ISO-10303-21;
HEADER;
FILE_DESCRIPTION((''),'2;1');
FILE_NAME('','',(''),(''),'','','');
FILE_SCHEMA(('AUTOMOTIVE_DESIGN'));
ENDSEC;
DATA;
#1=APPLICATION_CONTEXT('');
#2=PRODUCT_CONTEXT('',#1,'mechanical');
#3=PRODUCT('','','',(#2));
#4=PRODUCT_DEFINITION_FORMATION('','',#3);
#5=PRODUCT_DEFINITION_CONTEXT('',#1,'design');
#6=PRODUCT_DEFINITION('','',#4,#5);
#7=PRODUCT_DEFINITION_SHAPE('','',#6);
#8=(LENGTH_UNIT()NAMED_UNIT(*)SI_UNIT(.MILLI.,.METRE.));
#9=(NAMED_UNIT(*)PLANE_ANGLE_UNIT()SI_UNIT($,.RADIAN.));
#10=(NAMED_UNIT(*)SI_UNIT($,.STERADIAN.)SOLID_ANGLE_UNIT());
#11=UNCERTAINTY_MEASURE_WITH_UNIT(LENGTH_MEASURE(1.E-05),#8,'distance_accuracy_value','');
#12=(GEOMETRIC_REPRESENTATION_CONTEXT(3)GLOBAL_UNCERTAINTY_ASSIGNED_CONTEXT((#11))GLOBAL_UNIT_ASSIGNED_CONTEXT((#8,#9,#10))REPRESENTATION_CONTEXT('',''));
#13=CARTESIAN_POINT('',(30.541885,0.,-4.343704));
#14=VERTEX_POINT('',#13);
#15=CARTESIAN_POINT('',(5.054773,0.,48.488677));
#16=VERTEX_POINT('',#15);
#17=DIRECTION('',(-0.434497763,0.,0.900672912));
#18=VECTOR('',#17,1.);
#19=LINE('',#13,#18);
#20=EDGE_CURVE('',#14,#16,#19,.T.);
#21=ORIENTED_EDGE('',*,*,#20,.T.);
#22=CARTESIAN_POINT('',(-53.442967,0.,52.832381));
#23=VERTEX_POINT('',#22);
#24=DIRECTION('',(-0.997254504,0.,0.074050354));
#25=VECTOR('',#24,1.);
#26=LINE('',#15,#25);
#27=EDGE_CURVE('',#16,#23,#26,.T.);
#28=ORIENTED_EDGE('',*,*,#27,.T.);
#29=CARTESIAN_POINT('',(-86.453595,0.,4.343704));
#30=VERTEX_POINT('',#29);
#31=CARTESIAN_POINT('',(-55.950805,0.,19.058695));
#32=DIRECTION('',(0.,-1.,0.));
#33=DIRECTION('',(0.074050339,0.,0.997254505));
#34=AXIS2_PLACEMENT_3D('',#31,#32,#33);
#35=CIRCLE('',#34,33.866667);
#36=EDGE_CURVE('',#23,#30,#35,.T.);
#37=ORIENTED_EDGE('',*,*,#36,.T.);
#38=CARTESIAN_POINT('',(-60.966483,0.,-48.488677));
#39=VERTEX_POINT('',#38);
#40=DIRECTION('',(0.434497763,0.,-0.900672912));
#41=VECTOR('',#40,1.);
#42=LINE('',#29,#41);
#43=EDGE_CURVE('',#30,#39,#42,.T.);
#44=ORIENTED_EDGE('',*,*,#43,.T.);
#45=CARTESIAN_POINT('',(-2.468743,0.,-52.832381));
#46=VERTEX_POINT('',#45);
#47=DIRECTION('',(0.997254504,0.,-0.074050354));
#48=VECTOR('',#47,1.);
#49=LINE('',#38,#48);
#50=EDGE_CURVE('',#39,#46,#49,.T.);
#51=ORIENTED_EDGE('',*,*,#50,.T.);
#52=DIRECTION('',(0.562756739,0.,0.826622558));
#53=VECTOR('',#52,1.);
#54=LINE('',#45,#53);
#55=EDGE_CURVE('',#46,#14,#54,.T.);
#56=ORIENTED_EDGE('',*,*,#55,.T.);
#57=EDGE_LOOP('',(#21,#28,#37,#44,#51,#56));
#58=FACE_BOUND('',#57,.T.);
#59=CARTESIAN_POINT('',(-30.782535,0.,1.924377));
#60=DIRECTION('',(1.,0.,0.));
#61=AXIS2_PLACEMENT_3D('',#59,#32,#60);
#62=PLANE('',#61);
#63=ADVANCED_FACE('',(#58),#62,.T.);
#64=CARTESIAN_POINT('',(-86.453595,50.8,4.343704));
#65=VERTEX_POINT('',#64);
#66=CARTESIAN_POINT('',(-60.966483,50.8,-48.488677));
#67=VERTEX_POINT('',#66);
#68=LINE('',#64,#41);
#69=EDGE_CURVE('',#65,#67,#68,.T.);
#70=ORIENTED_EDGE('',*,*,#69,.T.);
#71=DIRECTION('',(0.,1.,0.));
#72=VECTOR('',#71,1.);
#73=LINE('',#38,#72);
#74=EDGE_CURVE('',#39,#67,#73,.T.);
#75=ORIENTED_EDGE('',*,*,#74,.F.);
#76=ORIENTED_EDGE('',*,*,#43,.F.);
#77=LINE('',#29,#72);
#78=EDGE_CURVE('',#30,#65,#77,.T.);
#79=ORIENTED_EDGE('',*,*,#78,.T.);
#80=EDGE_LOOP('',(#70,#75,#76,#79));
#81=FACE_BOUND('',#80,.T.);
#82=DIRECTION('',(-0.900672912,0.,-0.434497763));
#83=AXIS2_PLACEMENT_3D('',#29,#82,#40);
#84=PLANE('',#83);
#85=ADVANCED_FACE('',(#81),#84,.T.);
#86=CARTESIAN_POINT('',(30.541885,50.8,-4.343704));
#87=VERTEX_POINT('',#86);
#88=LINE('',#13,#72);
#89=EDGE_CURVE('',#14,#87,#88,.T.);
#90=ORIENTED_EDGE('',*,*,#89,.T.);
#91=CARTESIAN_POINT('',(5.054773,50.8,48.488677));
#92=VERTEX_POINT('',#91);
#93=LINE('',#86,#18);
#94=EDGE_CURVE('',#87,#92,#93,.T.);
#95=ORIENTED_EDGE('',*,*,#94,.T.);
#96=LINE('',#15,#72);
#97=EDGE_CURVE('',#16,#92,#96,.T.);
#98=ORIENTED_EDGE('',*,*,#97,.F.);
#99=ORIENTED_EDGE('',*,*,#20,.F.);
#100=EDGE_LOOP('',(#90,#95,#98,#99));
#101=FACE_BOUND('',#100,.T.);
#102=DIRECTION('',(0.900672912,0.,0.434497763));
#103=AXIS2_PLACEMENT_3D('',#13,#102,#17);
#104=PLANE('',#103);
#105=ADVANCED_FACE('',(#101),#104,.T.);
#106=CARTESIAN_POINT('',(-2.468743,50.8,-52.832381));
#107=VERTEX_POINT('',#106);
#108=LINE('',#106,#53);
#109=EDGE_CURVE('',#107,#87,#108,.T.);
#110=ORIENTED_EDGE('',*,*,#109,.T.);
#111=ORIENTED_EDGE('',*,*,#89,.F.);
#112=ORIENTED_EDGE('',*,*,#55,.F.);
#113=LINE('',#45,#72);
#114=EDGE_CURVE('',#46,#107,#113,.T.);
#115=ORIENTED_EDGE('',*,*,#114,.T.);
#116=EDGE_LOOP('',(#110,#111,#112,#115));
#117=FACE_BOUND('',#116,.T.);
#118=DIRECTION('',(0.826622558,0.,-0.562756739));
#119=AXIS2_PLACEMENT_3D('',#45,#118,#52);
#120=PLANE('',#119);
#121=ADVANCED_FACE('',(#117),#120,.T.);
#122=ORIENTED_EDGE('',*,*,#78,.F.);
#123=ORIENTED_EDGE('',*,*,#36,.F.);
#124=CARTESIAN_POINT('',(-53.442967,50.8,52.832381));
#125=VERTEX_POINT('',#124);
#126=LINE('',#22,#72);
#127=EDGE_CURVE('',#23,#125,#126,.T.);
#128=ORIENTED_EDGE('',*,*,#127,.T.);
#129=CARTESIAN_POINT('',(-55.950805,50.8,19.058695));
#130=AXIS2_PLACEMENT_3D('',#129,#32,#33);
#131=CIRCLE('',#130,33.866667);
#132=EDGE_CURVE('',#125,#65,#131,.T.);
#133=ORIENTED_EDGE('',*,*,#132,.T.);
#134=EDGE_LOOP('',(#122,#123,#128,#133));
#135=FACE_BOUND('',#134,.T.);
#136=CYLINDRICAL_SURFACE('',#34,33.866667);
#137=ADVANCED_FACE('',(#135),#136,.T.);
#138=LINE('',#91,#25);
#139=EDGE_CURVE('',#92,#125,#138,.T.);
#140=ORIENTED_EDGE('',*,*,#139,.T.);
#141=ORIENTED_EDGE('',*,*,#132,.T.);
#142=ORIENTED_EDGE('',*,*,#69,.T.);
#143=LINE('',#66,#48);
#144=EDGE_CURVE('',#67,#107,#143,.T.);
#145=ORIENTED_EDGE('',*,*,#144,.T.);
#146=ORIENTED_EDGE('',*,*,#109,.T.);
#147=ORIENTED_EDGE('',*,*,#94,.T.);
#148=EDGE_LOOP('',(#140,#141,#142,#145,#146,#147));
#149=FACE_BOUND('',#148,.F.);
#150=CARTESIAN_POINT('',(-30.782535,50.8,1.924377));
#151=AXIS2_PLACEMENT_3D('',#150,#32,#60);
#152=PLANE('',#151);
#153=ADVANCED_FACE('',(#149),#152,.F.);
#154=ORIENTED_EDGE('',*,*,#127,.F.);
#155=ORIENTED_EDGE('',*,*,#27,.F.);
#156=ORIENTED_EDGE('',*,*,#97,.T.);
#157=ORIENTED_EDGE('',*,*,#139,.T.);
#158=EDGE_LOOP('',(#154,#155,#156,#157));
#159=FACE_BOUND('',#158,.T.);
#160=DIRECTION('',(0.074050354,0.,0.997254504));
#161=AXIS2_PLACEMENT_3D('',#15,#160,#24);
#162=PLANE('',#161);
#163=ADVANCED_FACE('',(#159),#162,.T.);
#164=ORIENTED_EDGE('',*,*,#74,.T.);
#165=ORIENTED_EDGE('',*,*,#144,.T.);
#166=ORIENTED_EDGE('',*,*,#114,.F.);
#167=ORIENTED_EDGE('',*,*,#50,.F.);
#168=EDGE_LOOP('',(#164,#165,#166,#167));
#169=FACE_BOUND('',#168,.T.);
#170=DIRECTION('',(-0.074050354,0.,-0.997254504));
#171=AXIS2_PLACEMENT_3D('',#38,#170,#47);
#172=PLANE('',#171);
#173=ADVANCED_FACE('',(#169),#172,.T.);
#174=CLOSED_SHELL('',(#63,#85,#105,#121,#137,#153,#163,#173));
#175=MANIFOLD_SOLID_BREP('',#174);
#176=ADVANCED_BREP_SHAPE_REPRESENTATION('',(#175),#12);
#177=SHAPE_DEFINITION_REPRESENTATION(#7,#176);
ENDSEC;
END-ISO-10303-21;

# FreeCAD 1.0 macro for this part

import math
import FreeCAD as App
import Part
import Sketcher
Q = App.Units.Quantity

doc = App.newDocument("Part")
params = doc.addObject("Spreadsheet::Sheet", "Params")
for row, (alias, value) in enumerate([
    ("pad1_length", "2 in"),
], start=1):
    params.set(f"A{row}", alias)
    params.set(f"B{row}", "=" + value)
    params.setAlias(f"B{row}", alias)

body = doc.addObject("PartDesign::Body", "Body")

sketch1 = doc.addObject("Sketcher::SketchObject", "Sketch")
body.addObject(sketch1)
sketch1.AttachmentSupport = (doc.XZ_Plane, [""])
sketch1.MapMode = "FlatFace"
sketch1.addGeometry([
    Part.LineSegment(App.Vector(-86, 4, 0), App.Vector(-61, -48, 0)),
    Part.LineSegment(App.Vector(-61, -48, 0), App.Vector(-2, -53, 0)),
    Part.LineSegment(App.Vector(-2, -53, 0), App.Vector(31, -4, 0)),
    Part.LineSegment(App.Vector(31, -4, 0), App.Vector(5, 48, 0)),
    Part.LineSegment(App.Vector(5, 48, 0), App.Vector(-53, 53, 0)),
    Part.ArcOfCircle(Part.Circle(App.Vector(-56, 19, 0), App.Vector(0, 0, 1), 34), math.radians(86), math.radians(206)),
], False)
sketch1.addConstraint([
    Sketcher.Constraint("Coincident", 0, 2, 1, 1),
    Sketcher.Constraint("Coincident", 1, 2, 2, 1),
    Sketcher.Constraint("Coincident", 2, 2, 3, 1),
    Sketcher.Constraint("Coincident", 3, 2, 4, 1),
    Sketcher.Constraint("Tangent", 4, 2, 5, 1),
    Sketcher.Constraint("Tangent", 5, 2, 0, 1),
    Sketcher.Constraint("Parallel", 0, 3),
    Sketcher.Constraint("Parallel", 1, 4),
    Sketcher.Constraint("Equal", 0, 1),
    Sketcher.Constraint("Equal", 1, 2),
    Sketcher.Constraint("Equal", 2, 3),
    Sketcher.Constraint("Equal", 3, 4),
    Sketcher.Constraint("Radius", 5, Q("33.866667 mm")),
    Sketcher.Constraint("DistanceY", 2, 2, 5, 3, Q("23.402399 mm")),
    Sketcher.Constraint("DistanceY", 1, 2, -1, 1, Q("52.832381 mm")),
    Sketcher.Constraint("DistanceY", -1, 1, 4, 2, Q("52.832381 mm")),
    Sketcher.Constraint("DistanceX", 5, 3, -1, 1, Q("55.950805 mm")),
])
pad1 = doc.addObject("PartDesign::Pad", "Pad")
body.addObject(pad1)
pad1.Profile = sketch1
pad1.setExpression("Length", "Params.pad1_length")
pad1.Reversed = True

doc.recompute()
